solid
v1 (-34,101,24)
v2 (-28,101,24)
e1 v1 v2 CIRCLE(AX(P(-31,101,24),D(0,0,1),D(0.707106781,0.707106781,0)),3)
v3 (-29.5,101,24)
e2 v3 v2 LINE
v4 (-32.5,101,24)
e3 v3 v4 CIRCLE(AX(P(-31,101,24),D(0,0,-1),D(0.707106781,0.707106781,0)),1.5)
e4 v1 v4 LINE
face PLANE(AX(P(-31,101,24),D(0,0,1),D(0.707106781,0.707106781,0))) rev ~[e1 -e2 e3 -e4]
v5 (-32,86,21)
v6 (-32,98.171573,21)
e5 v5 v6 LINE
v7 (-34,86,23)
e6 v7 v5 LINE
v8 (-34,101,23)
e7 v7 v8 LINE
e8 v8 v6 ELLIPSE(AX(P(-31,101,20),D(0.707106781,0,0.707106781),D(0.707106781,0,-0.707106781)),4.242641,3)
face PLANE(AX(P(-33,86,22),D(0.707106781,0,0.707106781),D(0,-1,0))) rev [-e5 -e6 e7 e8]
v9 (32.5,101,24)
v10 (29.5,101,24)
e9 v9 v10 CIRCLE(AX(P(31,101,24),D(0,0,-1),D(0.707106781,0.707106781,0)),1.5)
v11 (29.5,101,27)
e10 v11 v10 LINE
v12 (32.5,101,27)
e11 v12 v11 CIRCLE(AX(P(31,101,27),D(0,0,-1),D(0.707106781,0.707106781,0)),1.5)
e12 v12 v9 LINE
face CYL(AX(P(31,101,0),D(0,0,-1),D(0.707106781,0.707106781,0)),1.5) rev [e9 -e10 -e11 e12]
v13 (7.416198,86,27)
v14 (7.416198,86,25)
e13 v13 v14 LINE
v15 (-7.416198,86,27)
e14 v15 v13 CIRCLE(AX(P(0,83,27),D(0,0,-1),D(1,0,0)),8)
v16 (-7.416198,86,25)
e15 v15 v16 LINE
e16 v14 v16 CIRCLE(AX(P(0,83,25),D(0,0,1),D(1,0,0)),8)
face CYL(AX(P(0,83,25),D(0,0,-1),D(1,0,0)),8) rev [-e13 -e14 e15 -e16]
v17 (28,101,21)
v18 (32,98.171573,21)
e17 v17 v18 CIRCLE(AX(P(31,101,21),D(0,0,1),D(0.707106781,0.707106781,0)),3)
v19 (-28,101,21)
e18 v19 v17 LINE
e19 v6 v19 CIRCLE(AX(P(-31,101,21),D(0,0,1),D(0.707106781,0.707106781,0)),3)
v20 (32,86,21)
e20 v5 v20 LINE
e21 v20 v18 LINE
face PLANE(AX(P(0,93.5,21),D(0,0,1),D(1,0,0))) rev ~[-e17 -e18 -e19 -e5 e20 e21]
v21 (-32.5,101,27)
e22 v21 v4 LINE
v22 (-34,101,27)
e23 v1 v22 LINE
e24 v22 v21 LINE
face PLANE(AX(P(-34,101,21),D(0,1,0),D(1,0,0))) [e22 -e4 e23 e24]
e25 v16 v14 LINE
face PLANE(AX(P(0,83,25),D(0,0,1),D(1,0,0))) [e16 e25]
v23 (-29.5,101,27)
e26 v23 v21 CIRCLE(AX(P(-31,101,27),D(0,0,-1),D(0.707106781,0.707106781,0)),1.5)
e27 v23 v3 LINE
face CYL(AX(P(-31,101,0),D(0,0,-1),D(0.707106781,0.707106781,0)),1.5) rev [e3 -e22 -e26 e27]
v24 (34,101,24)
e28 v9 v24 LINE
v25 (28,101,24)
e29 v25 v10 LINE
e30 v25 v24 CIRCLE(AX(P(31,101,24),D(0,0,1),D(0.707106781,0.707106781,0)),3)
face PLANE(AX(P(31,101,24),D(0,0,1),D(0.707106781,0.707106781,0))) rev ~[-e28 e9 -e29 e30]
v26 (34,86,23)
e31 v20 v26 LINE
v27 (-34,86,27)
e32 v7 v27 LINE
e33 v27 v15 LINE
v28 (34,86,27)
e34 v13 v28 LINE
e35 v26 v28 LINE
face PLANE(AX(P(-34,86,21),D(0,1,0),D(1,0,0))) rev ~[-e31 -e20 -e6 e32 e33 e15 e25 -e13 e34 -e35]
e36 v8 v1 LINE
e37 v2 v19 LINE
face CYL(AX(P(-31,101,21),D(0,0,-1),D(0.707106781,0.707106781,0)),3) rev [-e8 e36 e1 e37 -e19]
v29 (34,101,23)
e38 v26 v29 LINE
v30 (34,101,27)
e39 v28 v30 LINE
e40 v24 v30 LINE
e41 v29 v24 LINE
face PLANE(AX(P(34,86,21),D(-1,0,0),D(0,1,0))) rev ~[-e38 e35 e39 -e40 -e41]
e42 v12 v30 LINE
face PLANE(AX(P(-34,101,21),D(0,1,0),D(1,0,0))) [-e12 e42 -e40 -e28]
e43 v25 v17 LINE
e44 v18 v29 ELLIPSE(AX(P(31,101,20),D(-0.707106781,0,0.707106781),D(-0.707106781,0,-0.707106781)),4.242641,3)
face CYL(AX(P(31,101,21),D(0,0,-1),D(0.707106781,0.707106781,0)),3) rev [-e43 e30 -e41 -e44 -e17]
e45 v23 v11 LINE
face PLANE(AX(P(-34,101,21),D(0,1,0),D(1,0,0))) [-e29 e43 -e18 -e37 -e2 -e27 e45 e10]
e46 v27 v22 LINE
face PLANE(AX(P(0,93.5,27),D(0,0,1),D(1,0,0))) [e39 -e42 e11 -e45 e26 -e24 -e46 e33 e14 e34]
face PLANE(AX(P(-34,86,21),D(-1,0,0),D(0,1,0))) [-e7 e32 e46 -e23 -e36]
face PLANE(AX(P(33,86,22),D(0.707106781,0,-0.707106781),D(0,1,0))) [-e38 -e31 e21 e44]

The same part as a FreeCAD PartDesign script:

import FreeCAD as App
import Part
import Sketcher

V = App.Vector


def edges_at(feature, points):
    """Names of the edges that pass closest to the given points."""
    edges = feature.Shape.Edges
    near = lambda p: min(range(len(edges)), key=lambda i: edges[i].distToShape(Part.Vertex(*p))[0])
    return sorted({f"Edge{near(p) + 1}" for p in points})

doc = App.newDocument("Part")
body = doc.addObject("PartDesign::Body", "Body")

# Sketch on XY plane
sketch1 = body.newObject("Sketcher::SketchObject", "Sketch")
sketch1.AttachmentSupport = (doc.getObject("XY_Plane"), [""])
sketch1.MapMode = "FlatFace"
sketch1.addGeometry(Part.Circle(V(0, 0, 0), V(0, 0, 1), 1.5), False)
sketch1.addConstraint([
    Sketcher.Constraint("Coincident", 0, 3, -1, 1),
    Sketcher.Constraint("Diameter", 0, 3.0),
])
pad1 = body.newObject("PartDesign::Pad", "Pad")
pad1.Profile = sketch1
pad1.Length = 50
body2 = doc.addObject("PartDesign::Body", "Body001")
doc.recompute()

body.Placement = App.Placement(V(20, 137, 0), App.Rotation(V(0, 0, 1), 45))
boolean = body2.newObject("PartDesign::Boolean", "Boolean")
boolean.Type = "Fuse"
boolean.addObjects([body])
body3 = doc.addObject("PartDesign::Body", "Body002")

# Sketch on XY plane
sketch2 = body3.newObject("Sketcher::SketchObject", "Sketch001")
sketch2.AttachmentSupport = (doc.getObject("XY_Plane002"), [""])
sketch2.MapMode = "FlatFace"
sketch2.addGeometry(Part.Circle(V(0, 0, 0), V(0, 0, 1), 1.5), False)
sketch2.addConstraint([
    Sketcher.Constraint("Coincident", 0, 3, -1, 1),
    Sketcher.Constraint("Diameter", 0, 3.0),
])
pad2 = body3.newObject("PartDesign::Pad", "Pad001")
pad2.Profile = sketch2
pad2.Length = 50
body4 = doc.addObject("PartDesign::Body", "Body003")
body4.AllowCompound = True
doc.recompute()

body3.Placement = App.Placement(V(-20, 137, 0), App.Rotation(V(0, 0, 1), 45))
boolean2 = body4.newObject("PartDesign::Boolean", "Boolean001")
boolean2.Type = "Fuse"
boolean2.addObjects([body3])
doc.recompute()

boolean3 = body4.newObject("PartDesign::Boolean", "Boolean002")
boolean3.Type = "Fuse"
boolean3.addObjects([body2])
body5 = doc.addObject("PartDesign::Body", "Body004")

# Sketch on XY plane
sketch3 = body5.newObject("Sketcher::SketchObject", "Sketch002")
sketch3.AttachmentSupport = (doc.getObject("XY_Plane004"), [""])
sketch3.MapMode = "FlatFace"
sketch3.addGeometry(Part.Circle(V(0, 0, 0), V(0, 0, 1), 1.5), False)
sketch3.addConstraint([
    Sketcher.Constraint("Coincident", 0, 3, -1, 1),
    Sketcher.Constraint("Diameter", 0, 3.0),
])
pad3 = body5.newObject("PartDesign::Pad", "Pad002")
pad3.Profile = sketch3
pad3.Length = 50
body6 = doc.addObject("PartDesign::Body", "Body005")
doc.recompute()

body5.Placement = App.Placement(V(31, 131, 0), App.Rotation(V(0, 0, 1), 45))
boolean4 = body6.newObject("PartDesign::Boolean", "Boolean003")
boolean4.Type = "Fuse"
boolean4.addObjects([body5])
body7 = doc.addObject("PartDesign::Body", "Body006")

# Sketch on XY plane
sketch4 = body7.newObject("Sketcher::SketchObject", "Sketch003")
sketch4.AttachmentSupport = (doc.getObject("XY_Plane006"), [""])
sketch4.MapMode = "FlatFace"
sketch4.addGeometry(Part.Circle(V(0, 0, 0), V(0, 0, 1), 1.5), False)
sketch4.addConstraint([
    Sketcher.Constraint("Coincident", 0, 3, -1, 1),
    Sketcher.Constraint("Diameter", 0, 3.0),
])
pad4 = body7.newObject("PartDesign::Pad", "Pad003")
pad4.Profile = sketch4
pad4.Length = 50
body8 = doc.addObject("PartDesign::Body", "Body007")
body8.AllowCompound = True
doc.recompute()

body7.Placement = App.Placement(V(-31, 131, 0), App.Rotation(V(0, 0, 1), 45))
boolean5 = body8.newObject("PartDesign::Boolean", "Boolean004")
boolean5.Type = "Fuse"
boolean5.addObjects([body7])
doc.recompute()

boolean6 = body8.newObject("PartDesign::Boolean", "Boolean005")
boolean6.Type = "Fuse"
boolean6.addObjects([body6])
body9 = doc.addObject("PartDesign::Body", "Body008")

# Sketch on XY plane
sketch5 = body9.newObject("Sketcher::SketchObject", "Sketch004")
sketch5.AttachmentSupport = (doc.getObject("XY_Plane008"), [""])
sketch5.MapMode = "FlatFace"
sketch5.addGeometry(Part.Circle(V(0, 0, 0), V(0, 0, 1), 1.5), False)
sketch5.addConstraint([
    Sketcher.Constraint("Coincident", 0, 3, -1, 1),
    Sketcher.Constraint("Diameter", 0, 3.0),
])
pad5 = body9.newObject("PartDesign::Pad", "Pad004")
pad5.Profile = sketch5
pad5.Length = 50
body10 = doc.addObject("PartDesign::Body", "Body009")
doc.recompute()

body9.Placement = App.Placement(V(31, 101, 0), App.Rotation(V(0, 0, 1), 45))
boolean7 = body10.newObject("PartDesign::Boolean", "Boolean006")
boolean7.Type = "Fuse"
boolean7.addObjects([body9])
body11 = doc.addObject("PartDesign::Body", "Body010")

# Sketch on XY plane
sketch6 = body11.newObject("Sketcher::SketchObject", "Sketch005")
sketch6.AttachmentSupport = (doc.getObject("XY_Plane010"), [""])
sketch6.MapMode = "FlatFace"
sketch6.addGeometry(Part.Circle(V(0, 0, 0), V(0, 0, 1), 1.5), False)
sketch6.addConstraint([
    Sketcher.Constraint("Coincident", 0, 3, -1, 1),
    Sketcher.Constraint("Diameter", 0, 3.0),
])
pad6 = body11.newObject("PartDesign::Pad", "Pad005")
pad6.Profile = sketch6
pad6.Length = 50
body12 = doc.addObject("PartDesign::Body", "Body011")
body12.AllowCompound = True
doc.recompute()

body11.Placement = App.Placement(V(-31, 101, 0), App.Rotation(V(0, 0, 1), 45))
boolean8 = body12.newObject("PartDesign::Boolean", "Boolean007")
boolean8.Type = "Fuse"
boolean8.addObjects([body11])
doc.recompute()

boolean9 = body12.newObject("PartDesign::Boolean", "Boolean008")
boolean9.Type = "Fuse"
boolean9.addObjects([body10])
doc.recompute()

boolean10 = body12.newObject("PartDesign::Boolean", "Boolean009")
boolean10.Type = "Fuse"
boolean10.addObjects([body4])
doc.recompute()

boolean11 = body12.newObject("PartDesign::Boolean", "Boolean010")
boolean11.Type = "Fuse"
boolean11.addObjects([body8])
body13 = doc.addObject("PartDesign::Body", "Body012")

# Sketch on XY plane
sketch7 = body13.newObject("Sketcher::SketchObject", "Sketch006")
sketch7.AttachmentSupport = (doc.getObject("XY_Plane012"), [""])
sketch7.MapMode = "FlatFace"
sketch7.addGeometry(Part.Circle(V(0, 0, 0), V(0, 0, 1), 3), False)
sketch7.addConstraint([
    Sketcher.Constraint("Coincident", 0, 3, -1, 1),
    Sketcher.Constraint("Diameter", 0, 6.0),
])
pad7 = body13.newObject("PartDesign::Pad", "Pad006")
pad7.Profile = sketch7
pad7.Length = 3
body14 = doc.addObject("PartDesign::Body", "Body013")
doc.recompute()

body13.Placement = App.Placement(V(31, 131, 0), App.Rotation(V(0, 0, 1), 45))
boolean12 = body14.newObject("PartDesign::Boolean", "Boolean011")
boolean12.Type = "Fuse"
boolean12.addObjects([body13])
body15 = doc.addObject("PartDesign::Body", "Body014")

# Sketch on XY plane
sketch8 = body15.newObject("Sketcher::SketchObject", "Sketch007")
sketch8.AttachmentSupport = (doc.getObject("XY_Plane014"), [""])
sketch8.MapMode = "FlatFace"
sketch8.addGeometry(Part.Circle(V(0, 0, 0), V(0, 0, 1), 3), False)
sketch8.addConstraint([
    Sketcher.Constraint("Coincident", 0, 3, -1, 1),
    Sketcher.Constraint("Diameter", 0, 6.0),
])
pad8 = body15.newObject("PartDesign::Pad", "Pad007")
pad8.Profile = sketch8
pad8.Length = 3
body16 = doc.addObject("PartDesign::Body", "Body015")
body16.AllowCompound = True
doc.recompute()

body15.Placement = App.Placement(V(-31, 131, 0), App.Rotation(V(0, 0, 1), 45))
boolean13 = body16.newObject("PartDesign::Boolean", "Boolean012")
boolean13.Type = "Fuse"
boolean13.addObjects([body15])
doc.recompute()

boolean14 = body16.newObject("PartDesign::Boolean", "Boolean013")
boolean14.Type = "Fuse"
boolean14.addObjects([body14])
body17 = doc.addObject("PartDesign::Body", "Body016")
body17.AllowCompound = True
doc.recompute()

body16.Placement = App.Placement(V(0, 0, 25), App.Rotation(V(0, 0, 1), 0))
boolean15 = body17.newObject("PartDesign::Boolean", "Boolean014")
boolean15.Type = "Fuse"
boolean15.addObjects([body16])
body18 = doc.addObject("PartDesign::Body", "Body017")

# Sketch on XY plane
sketch9 = body18.newObject("Sketcher::SketchObject", "Sketch008")
sketch9.AttachmentSupport = (doc.getObject("XY_Plane017"), [""])
sketch9.MapMode = "FlatFace"
sketch9.addGeometry(Part.Circle(V(0, 0, 0), V(0, 0, 1), 3), False)
sketch9.addConstraint([
    Sketcher.Constraint("Coincident", 0, 3, -1, 1),
    Sketcher.Constraint("Diameter", 0, 6.0),
])
pad9 = body18.newObject("PartDesign::Pad", "Pad008")
pad9.Profile = sketch9
pad9.Length = 3
body19 = doc.addObject("PartDesign::Body", "Body018")
doc.recompute()

body18.Placement = App.Placement(V(31, 101, 0), App.Rotation(V(0, 0, 1), 45))
boolean16 = body19.newObject("PartDesign::Boolean", "Boolean015")
boolean16.Type = "Fuse"
boolean16.addObjects([body18])
body20 = doc.addObject("PartDesign::Body", "Body019")

# Sketch on XY plane
sketch10 = body20.newObject("Sketcher::SketchObject", "Sketch009")
sketch10.AttachmentSupport = (doc.getObject("XY_Plane019"), [""])
sketch10.MapMode = "FlatFace"
sketch10.addGeometry(Part.Circle(V(0, 0, 0), V(0, 0, 1), 3), False)
sketch10.addConstraint([
    Sketcher.Constraint("Coincident", 0, 3, -1, 1),
    Sketcher.Constraint("Diameter", 0, 6.0),
])
pad10 = body20.newObject("PartDesign::Pad", "Pad009")
pad10.Profile = sketch10
pad10.Length = 3
body21 = doc.addObject("PartDesign::Body", "Body020")
body21.AllowCompound = True
doc.recompute()

body20.Placement = App.Placement(V(-31, 101, 0), App.Rotation(V(0, 0, 1), 45))
boolean17 = body21.newObject("PartDesign::Boolean", "Boolean016")
boolean17.Type = "Fuse"
boolean17.addObjects([body20])
doc.recompute()

boolean18 = body21.newObject("PartDesign::Boolean", "Boolean017")
boolean18.Type = "Fuse"
boolean18.addObjects([body19])
body22 = doc.addObject("PartDesign::Body", "Body021")
body22.AllowCompound = True
doc.recompute()

body21.Placement = App.Placement(V(0, 0, 21), App.Rotation(V(0, 0, 1), 0))
boolean19 = body22.newObject("PartDesign::Boolean", "Boolean018")
boolean19.Type = "Fuse"
boolean19.addObjects([body21])
body23 = doc.addObject("PartDesign::Body", "Body022")

# Sketch on XY plane
sketch11 = body23.newObject("Sketcher::SketchObject", "Sketch010")
sketch11.AttachmentSupport = (doc.getObject("XY_Plane022"), [""])
sketch11.MapMode = "FlatFace"
sketch11.addGeometry(Part.Circle(V(0, 0, 0), V(0, 0, 1), 3), False)
sketch11.addConstraint([
    Sketcher.Constraint("Coincident", 0, 3, -1, 1),
    Sketcher.Constraint("Diameter", 0, 6.0),
])
pad11 = body23.newObject("PartDesign::Pad", "Pad010")
pad11.Profile = sketch11
pad11.Length = 3
body24 = doc.addObject("PartDesign::Body", "Body023")
doc.recompute()

body23.Placement = App.Placement(V(20, 137, 0), App.Rotation(V(0, 0, 1), 45))
boolean20 = body24.newObject("PartDesign::Boolean", "Boolean019")
boolean20.Type = "Fuse"
boolean20.addObjects([body23])
body25 = doc.addObject("PartDesign::Body", "Body024")

# Sketch on XY plane
sketch12 = body25.newObject("Sketcher::SketchObject", "Sketch011")
sketch12.AttachmentSupport = (doc.getObject("XY_Plane024"), [""])
sketch12.MapMode = "FlatFace"
sketch12.addGeometry(Part.Circle(V(0, 0, 0), V(0, 0, 1), 3), False)
sketch12.addConstraint([
    Sketcher.Constraint("Coincident", 0, 3, -1, 1),
    Sketcher.Constraint("Diameter", 0, 6.0),
])
pad12 = body25.newObject("PartDesign::Pad", "Pad011")
pad12.Profile = sketch12
pad12.Length = 3
body26 = doc.addObject("PartDesign::Body", "Body025")
body26.AllowCompound = True
doc.recompute()

body25.Placement = App.Placement(V(-20, 137, 0), App.Rotation(V(0, 0, 1), 45))
boolean21 = body26.newObject("PartDesign::Boolean", "Boolean020")
boolean21.Type = "Fuse"
boolean21.addObjects([body25])
doc.recompute()

boolean22 = body26.newObject("PartDesign::Boolean", "Boolean021")
boolean22.Type = "Fuse"
boolean22.addObjects([body24])
body27 = doc.addObject("PartDesign::Body", "Body026")
body27.AllowCompound = True
doc.recompute()

body26.Placement = App.Placement(V(0, 0, 25), App.Rotation(V(0, 0, 1), 0))
boolean23 = body27.newObject("PartDesign::Boolean", "Boolean022")
boolean23.Type = "Fuse"
boolean23.addObjects([body26])
doc.recompute()

boolean24 = body27.newObject("PartDesign::Boolean", "Boolean023")
boolean24.Type = "Fuse"
boolean24.addObjects([body17])
doc.recompute()

boolean25 = body27.newObject("PartDesign::Boolean", "Boolean024")
boolean25.Type = "Fuse"
boolean25.addObjects([body22])
body28 = doc.addObject("PartDesign::Body", "Body027")

# Sketch on XY plane
sketch13 = body28.newObject("Sketcher::SketchObject", "Sketch012")
sketch13.AttachmentSupport = (doc.getObject("XY_Plane027"), [""])
sketch13.MapMode = "FlatFace"
sketch13.AttachmentOffset = App.Placement(V(0, 0, 25), App.Rotation())
sketch13.addGeometry(Part.Circle(V(0, 83, 0), V(0, 0, 1), 8), False)
sketch13.addConstraint([
    Sketcher.Constraint("PointOnObject", 0, 3, -2),
    Sketcher.Constraint("Diameter", 0, 16.0),
    Sketcher.Constraint("DistanceY", -1, 1, 0, 3, 83.0),
])
pad13 = body28.newObject("PartDesign::Pad", "Pad012")
pad13.Profile = sketch13
pad13.Length = 6
body29 = doc.addObject("PartDesign::Body", "Body028")

# Sketch on XY plane
sketch14 = body29.newObject("Sketcher::SketchObject", "Sketch013")
sketch14.AttachmentSupport = (doc.getObject("XY_Plane028"), [""])
sketch14.MapMode = "FlatFace"
sketch14.AttachmentOffset = App.Placement(V(0, 0, 21), App.Rotation())
sketch14.addGeometry([
    Part.LineSegment(V(-34, 101, 0), V(-34, 86, 0)),
    Part.LineSegment(V(-34, 86, 0), V(34, 86, 0)),
    Part.LineSegment(V(34, 86, 0), V(34, 101, 0)),
    Part.LineSegment(V(34, 101, 0), V(-34, 101, 0)),
], False)
sketch14.addConstraint([
    Sketcher.Constraint("Coincident", 0, 2, 1, 1),
    Sketcher.Constraint("Coincident", 1, 2, 2, 1),
    Sketcher.Constraint("Coincident", 2, 2, 3, 1),
    Sketcher.Constraint("Coincident", 3, 2, 0, 1),
    Sketcher.Constraint("Vertical", 0),
    Sketcher.Constraint("Horizontal", 1),
    Sketcher.Constraint("Vertical", 2),
    Sketcher.Constraint("Horizontal", 3),
    Sketcher.Constraint("DistanceX", 1, 1, 1, 2, 68.0),
    Sketcher.Constraint("DistanceY", 0, 2, 0, 1, 15.0),
    Sketcher.Constraint("DistanceX", 0, 2, -1, 1, 34.0),
    Sketcher.Constraint("DistanceY", -1, 1, 0, 2, 86.0),
])
pad14 = body29.newObject("PartDesign::Pad", "Pad013")
pad14.Profile = sketch14
pad14.Length = 6
doc.recompute()

boolean26 = body29.newObject("PartDesign::Boolean", "Boolean025")
boolean26.Type = "Cut"
boolean26.addObjects([body28])
doc.recompute()

boolean27 = body29.newObject("PartDesign::Boolean", "Boolean026")
boolean27.Type = "Cut"
boolean27.addObjects([body27])
doc.recompute()

chamfer = body29.newObject("PartDesign::Chamfer", "Chamfer")
chamfer.Base = (boolean27, edges_at(boolean27, [(-34, 93.5, 21), (34, 93.5, 21)]))
chamfer.Size = 2
doc.recompute()

boolean28 = body29.newObject("PartDesign::Boolean", "Boolean027")
boolean28.Type = "Cut"
boolean28.addObjects([body12])

doc.recompute()
